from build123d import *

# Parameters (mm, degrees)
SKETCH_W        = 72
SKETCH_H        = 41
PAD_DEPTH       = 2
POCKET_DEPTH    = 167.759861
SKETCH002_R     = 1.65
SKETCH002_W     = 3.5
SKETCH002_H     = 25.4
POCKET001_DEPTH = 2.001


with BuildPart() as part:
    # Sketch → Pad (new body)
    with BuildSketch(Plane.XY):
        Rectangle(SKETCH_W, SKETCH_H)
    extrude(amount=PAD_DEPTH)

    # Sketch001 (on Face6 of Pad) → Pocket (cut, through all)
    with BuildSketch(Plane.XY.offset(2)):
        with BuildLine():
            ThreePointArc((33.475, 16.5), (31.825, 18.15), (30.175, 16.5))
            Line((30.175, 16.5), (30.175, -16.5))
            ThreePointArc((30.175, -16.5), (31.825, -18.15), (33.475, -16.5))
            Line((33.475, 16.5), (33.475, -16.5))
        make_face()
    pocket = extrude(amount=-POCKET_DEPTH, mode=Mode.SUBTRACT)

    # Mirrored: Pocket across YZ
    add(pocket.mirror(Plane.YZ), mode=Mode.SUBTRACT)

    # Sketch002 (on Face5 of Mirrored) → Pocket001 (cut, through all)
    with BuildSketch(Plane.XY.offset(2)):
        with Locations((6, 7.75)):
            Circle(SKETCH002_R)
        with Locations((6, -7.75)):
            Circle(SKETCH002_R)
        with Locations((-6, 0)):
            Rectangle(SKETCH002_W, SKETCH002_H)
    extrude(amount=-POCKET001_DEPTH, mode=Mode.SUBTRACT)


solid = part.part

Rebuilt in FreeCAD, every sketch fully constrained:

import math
import FreeCAD as App
import Part
import Sketcher
from FreeCAD import Vector
Q = App.Units.Quantity


def add_polygon(sketch, points):
    """Adds a closed chain of lines whose ends are joined by coincident constraints."""
    first, n = sketch.GeometryCount, len(points)
    for a, b in zip(points, points[1:] + points[:1]):
        sketch.addGeometry(Part.LineSegment(App.Vector(*a, 0), App.Vector(*b, 0)), False)
    for i in range(n):
        sketch.addConstraint(Sketcher.Constraint("Coincident", first + i, 2, first + (i + 1) % n, 1))

doc = App.newDocument("Part")
body = doc.addObject("PartDesign::Body", "Body")

# Sketch on XY plane
sketch1 = body.newObject("Sketcher::SketchObject", "Sketch")
sketch1.AttachmentSupport = (doc.getObject("XY_Plane"), [""])
sketch1.MapMode = "FlatFace"
add_polygon(sketch1, [(-36, 20.5), (-36, -20.5), (36, -20.5), (36, 20.5)])  # lines 0-3
sketch1.addConstraint([
    Sketcher.Constraint("Vertical", 0),
    Sketcher.Constraint("Horizontal", 1),
    Sketcher.Constraint("Vertical", 2),
    Sketcher.Constraint("Horizontal", 3),
    Sketcher.Constraint("Symmetric", 0, 2, 2, 2, -1, 1),
    Sketcher.Constraint("DistanceX", 1, 1, 1, 2, Q("72 mm")),
    Sketcher.Constraint("DistanceY", 0, 2, 0, 1, Q("41 mm")),
])
pad1 = body.newObject("PartDesign::Pad", "Pad")
pad1.Profile = sketch1
pad1.Length = 2

# Sketch on XY plane
sketch2 = body.newObject("Sketcher::SketchObject", "Sketch001")
sketch2.AttachmentSupport = (doc.getObject("XY_Plane"), [""])
sketch2.MapMode = "FlatFace"
sketch2.AttachmentOffset = App.Placement(Vector(0, 0, 2), App.Rotation())
sketch2.addGeometry([
    Part.ArcOfCircle(Part.Circle(Vector(31.825, 16.5, 0), Vector(0, 0, 1), 1.65), math.radians(0), math.radians(180)),
    Part.LineSegment(Vector(30.175, 16.5, 0), Vector(30.175, -16.5, 0)),
    Part.ArcOfCircle(Part.Circle(Vector(31.825, -16.5, 0), Vector(0, 0, 1), 1.65), math.radians(180), math.radians(360)),
    Part.LineSegment(Vector(33.475, -16.5, 0), Vector(33.475, 16.5, 0)),
], False)
sketch2.addConstraint([
    Sketcher.Constraint("Tangent", 0, 2, 1, 1),
    Sketcher.Constraint("Tangent", 1, 2, 2, 1),
    Sketcher.Constraint("Tangent", 2, 2, 3, 1),
    Sketcher.Constraint("Tangent", 3, 2, 0, 1),
    Sketcher.Constraint("Vertical", 1),
    Sketcher.Constraint("Vertical", 3),
    Sketcher.Constraint("DistanceY", 1, 2, 1, 1, Q("33 mm")),
    Sketcher.Constraint("Radius", 0, Q("1.65 mm")),
    Sketcher.Constraint("DistanceY", -1, 1, 0, 3, Q("16.5 mm")),
    Sketcher.Constraint("DistanceX", -1, 1, 0, 3, Q("31.825 mm")),
])
pocket1 = body.newObject("PartDesign::Pocket", "Pocket")
pocket1.Profile = sketch2
pocket1.Type = "ThroughAll"
doc.recompute()

mirrored = body.newObject("PartDesign::Mirrored", "Mirrored")
mirrored.Originals = [pocket1]
mirrored.MirrorPlane = (doc.getObject("YZ_Plane"), [""])
body.Tip = mirrored

# Sketch on XY plane
sketch3 = body.newObject("Sketcher::SketchObject", "Sketch002")
sketch3.AttachmentSupport = (doc.getObject("XY_Plane"), [""])
sketch3.MapMode = "FlatFace"
sketch3.AttachmentOffset = App.Placement(Vector(0, 0, 2), App.Rotation())
sketch3.addGeometry(Part.Circle(Vector(6, 7.75, 0), Vector(0, 0, 1), 1.65), False)  # 0
sketch3.addGeometry(Part.Circle(Vector(6, -7.75, 0), Vector(0, 0, 1), 1.65), False)  # 1
add_polygon(sketch3, [(-7.75, 12.7), (-7.75, -12.7), (-4.25, -12.7), (-4.25, 12.7)])  # lines 2-5
sketch3.addConstraint([
    Sketcher.Constraint("Vertical", 2),
    Sketcher.Constraint("Horizontal", 3),
    Sketcher.Constraint("Vertical", 4),
    Sketcher.Constraint("Horizontal", 5),
    Sketcher.Constraint("Equal", 0, 1),
    Sketcher.Constraint("Symmetric", 0, 3, 1, 3, -1),
    Sketcher.Constraint("Diameter", 0, Q("3.3 mm")),
    Sketcher.Constraint("DistanceX", 3, 1, 3, 2, Q("3.5 mm")),
    Sketcher.Constraint("DistanceY", 2, 2, 2, 1, Q("25.4 mm")),
    Sketcher.Constraint("DistanceX", -1, 1, 0, 3, Q("6 mm")),
    Sketcher.Constraint("DistanceY", 2, 2, -1, 1, Q("12.7 mm")),
    Sketcher.Constraint("DistanceY", 1, 3, 0, 3, Q("15.5 mm")),
    Sketcher.Constraint("DistanceX", 2, 2, -1, 1, Q("7.75 mm")),
])
pocket2 = body.newObject("PartDesign::Pocket", "Pocket001")
pocket2.Profile = sketch3
pocket2.Type = "ThroughAll"

doc.recompute()
